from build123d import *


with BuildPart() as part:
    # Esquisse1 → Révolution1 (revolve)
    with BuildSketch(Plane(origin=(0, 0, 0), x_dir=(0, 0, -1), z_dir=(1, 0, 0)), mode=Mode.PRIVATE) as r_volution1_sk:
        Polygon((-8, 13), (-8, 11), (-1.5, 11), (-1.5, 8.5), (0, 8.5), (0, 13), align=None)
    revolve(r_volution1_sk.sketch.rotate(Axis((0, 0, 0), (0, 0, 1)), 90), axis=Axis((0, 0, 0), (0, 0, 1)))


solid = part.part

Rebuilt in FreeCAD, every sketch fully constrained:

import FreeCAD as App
import Part
import Sketcher

V = App.Vector
Q = App.Units.Quantity

doc = App.newDocument("Part")
params = doc.addObject("Spreadsheet::Sheet", "Params")
for row, (alias, value) in enumerate([
    ("sketch1_width", "2 mm"),
    ("sketch1_height", "8 mm"),
    ("sketch1_width2", "2.5 mm"),
    ("sketch1_height2", "6.5 mm"),
    ("revolution_angle", "360 deg"),
], start=1):
    params.set(f"A{row}", alias)
    params.set(f"B{row}", "=" + value)
    params.setAlias(f"B{row}", alias)

body = doc.addObject("PartDesign::Body", "Body")

# Sketch on YZ plane
sketch1 = body.newObject("Sketcher::SketchObject", "Sketch")
sketch1.AttachmentSupport = (doc.getObject("YZ_Plane"), [""])
sketch1.MapMode = "FlatFace"
sketch1.addGeometry([
    Part.LineSegment(V(13, 8, 0), V(11, 8, 0)),  # 0
    Part.LineSegment(V(11, 8, 0), V(11, 1.5, 0)),  # 1
    Part.LineSegment(V(11, 1.5, 0), V(8.5, 1.5, 0)),  # 2
    Part.LineSegment(V(8.5, 1.5, 0), V(8.5, 0, 0)),  # 3
    Part.LineSegment(V(8.5, 0, 0), V(13, 0, 0)),  # 4
    Part.LineSegment(V(13, 0, 0), V(13, 8, 0)),  # 5
], False)
sketch1.addConstraint([
    Sketcher.Constraint("Coincident", 0, 2, 1, 1),
    Sketcher.Constraint("Coincident", 1, 2, 2, 1),
    Sketcher.Constraint("Coincident", 2, 2, 3, 1),
    Sketcher.Constraint("Coincident", 3, 2, 4, 1),
    Sketcher.Constraint("Coincident", 4, 2, 5, 1),
    Sketcher.Constraint("Coincident", 5, 2, 0, 1),
    Sketcher.Constraint("Horizontal", 0),
    Sketcher.Constraint("Vertical", 1),
    Sketcher.Constraint("Horizontal", 2),
    Sketcher.Constraint("Vertical", 3),
    Sketcher.Constraint("Horizontal", 4),
    Sketcher.Constraint("Vertical", 5),
    Sketcher.Constraint("PointOnObject", 3, 2, -1),
    Sketcher.Constraint("DistanceX", 0, 2, 0, 1, Q("2 mm")),
    Sketcher.Constraint("DistanceY", 5, 1, 5, 2, Q("8 mm")),
    Sketcher.Constraint("DistanceX", 2, 2, 2, 1, Q("2.5 mm")),
    Sketcher.Constraint("DistanceY", 1, 2, 1, 1, Q("6.5 mm")),
    Sketcher.Constraint("DistanceX", -1, 1, 0, 2, Q("11 mm")),
])
sketch1.setExpression("Constraints[13]", "Params.sketch1_width")
sketch1.setExpression("Constraints[14]", "Params.sketch1_height")
sketch1.setExpression("Constraints[15]", "Params.sketch1_width2")
sketch1.setExpression("Constraints[16]", "Params.sketch1_height2")
revolution = body.newObject("PartDesign::Revolution", "Revolution")
revolution.Profile = sketch1
revolution.ReferenceAxis = (sketch1, ["V_Axis"])
revolution.setExpression("Angle", "Params.revolution_angle")

doc.recompute()
